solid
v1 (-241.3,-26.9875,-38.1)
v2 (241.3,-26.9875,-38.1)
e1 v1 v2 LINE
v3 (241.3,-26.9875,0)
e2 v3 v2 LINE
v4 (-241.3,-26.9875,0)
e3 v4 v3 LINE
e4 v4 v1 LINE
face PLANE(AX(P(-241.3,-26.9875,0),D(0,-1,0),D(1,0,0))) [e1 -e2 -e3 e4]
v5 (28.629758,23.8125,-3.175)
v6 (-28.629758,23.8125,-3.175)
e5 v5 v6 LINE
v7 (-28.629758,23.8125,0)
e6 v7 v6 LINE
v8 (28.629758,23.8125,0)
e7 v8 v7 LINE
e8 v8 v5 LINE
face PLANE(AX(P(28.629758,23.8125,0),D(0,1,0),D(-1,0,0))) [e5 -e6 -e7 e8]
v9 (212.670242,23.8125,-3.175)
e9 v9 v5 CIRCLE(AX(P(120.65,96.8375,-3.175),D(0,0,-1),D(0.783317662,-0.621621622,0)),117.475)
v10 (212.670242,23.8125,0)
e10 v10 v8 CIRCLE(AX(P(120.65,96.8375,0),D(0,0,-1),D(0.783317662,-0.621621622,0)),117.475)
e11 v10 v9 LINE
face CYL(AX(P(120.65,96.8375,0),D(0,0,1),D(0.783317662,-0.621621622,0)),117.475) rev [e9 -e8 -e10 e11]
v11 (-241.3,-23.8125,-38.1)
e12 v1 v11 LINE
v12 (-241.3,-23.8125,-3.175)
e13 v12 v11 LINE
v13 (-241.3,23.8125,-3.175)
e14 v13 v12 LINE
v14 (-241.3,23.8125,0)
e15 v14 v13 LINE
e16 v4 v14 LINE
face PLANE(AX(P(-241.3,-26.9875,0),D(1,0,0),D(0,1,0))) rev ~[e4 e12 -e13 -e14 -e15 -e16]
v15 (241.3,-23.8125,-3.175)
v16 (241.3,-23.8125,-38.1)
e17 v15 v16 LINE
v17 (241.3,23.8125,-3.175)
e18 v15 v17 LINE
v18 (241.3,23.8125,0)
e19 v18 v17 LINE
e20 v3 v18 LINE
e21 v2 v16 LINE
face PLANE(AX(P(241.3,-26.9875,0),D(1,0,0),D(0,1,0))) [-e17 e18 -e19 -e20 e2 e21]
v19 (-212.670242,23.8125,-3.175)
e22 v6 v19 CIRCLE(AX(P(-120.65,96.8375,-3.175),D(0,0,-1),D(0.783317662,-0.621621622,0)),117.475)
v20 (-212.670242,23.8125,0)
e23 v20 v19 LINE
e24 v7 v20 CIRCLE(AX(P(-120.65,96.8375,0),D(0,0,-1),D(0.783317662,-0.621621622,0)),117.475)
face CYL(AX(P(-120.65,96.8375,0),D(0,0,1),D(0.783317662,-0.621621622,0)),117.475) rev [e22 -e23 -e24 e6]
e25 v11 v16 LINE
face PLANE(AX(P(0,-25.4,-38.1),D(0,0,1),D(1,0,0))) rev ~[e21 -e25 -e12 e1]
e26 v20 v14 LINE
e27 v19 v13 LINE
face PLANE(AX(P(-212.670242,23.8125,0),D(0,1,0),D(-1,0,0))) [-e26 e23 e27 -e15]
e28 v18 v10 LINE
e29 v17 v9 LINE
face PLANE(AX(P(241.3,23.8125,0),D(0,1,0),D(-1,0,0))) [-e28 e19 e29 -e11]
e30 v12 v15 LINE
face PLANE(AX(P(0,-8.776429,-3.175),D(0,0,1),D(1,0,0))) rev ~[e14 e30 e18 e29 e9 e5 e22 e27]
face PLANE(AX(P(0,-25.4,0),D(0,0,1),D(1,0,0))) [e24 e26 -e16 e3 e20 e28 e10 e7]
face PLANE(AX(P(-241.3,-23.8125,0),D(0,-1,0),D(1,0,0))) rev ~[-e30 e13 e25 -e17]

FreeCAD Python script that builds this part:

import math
import FreeCAD as App
import Part
import Sketcher
Q = App.Units.Quantity

doc = App.newDocument("Part")
body = doc.addObject("PartDesign::Body", "Body")

# Sketch on XY plane
sketch1 = body.newObject("Sketcher::SketchObject", "Sketch")
sketch1.AttachmentSupport = (doc.getObject("XY_Plane"), [""])
sketch1.MapMode = "FlatFace"
sketch1.addGeometry([
    Part.LineSegment(App.Vector(-241, -24, 0), App.Vector(241, -24, 0)),  # 0
    Part.LineSegment(App.Vector(241, -24, 0), App.Vector(241, 24, 0)),  # 1
    Part.LineSegment(App.Vector(241, 24, 0), App.Vector(213, 24, 0)),  # 2
    Part.ArcOfCircle(Part.Circle(App.Vector(121, 97, 0), App.Vector(0, 0, 1), 117), math.radians(-142), math.radians(-38)),  # 3
    Part.LineSegment(App.Vector(29, 24, 0), App.Vector(-29, 24, 0)),  # 4
    Part.ArcOfCircle(Part.Circle(App.Vector(-121, 97, 0), App.Vector(0, 0, 1), 117), math.radians(-142), math.radians(-38)),  # 5
    Part.LineSegment(App.Vector(-213, 24, 0), App.Vector(-241, 24, 0)),  # 6
    Part.LineSegment(App.Vector(-241, 24, 0), App.Vector(-241, -24, 0)),  # 7
], False)
sketch1.addConstraint([
    Sketcher.Constraint("Coincident", 0, 2, 1, 1),
    Sketcher.Constraint("Coincident", 1, 2, 2, 1),
    Sketcher.Constraint("Coincident", 2, 2, 3, 2),
    Sketcher.Constraint("Coincident", 3, 1, 4, 1),
    Sketcher.Constraint("Coincident", 4, 2, 5, 2),
    Sketcher.Constraint("Coincident", 5, 1, 6, 1),
    Sketcher.Constraint("Coincident", 6, 2, 7, 1),
    Sketcher.Constraint("Coincident", 7, 2, 0, 1),
    Sketcher.Constraint("Horizontal", 0),
    Sketcher.Constraint("Vertical", 1),
    Sketcher.Constraint("Horizontal", 2),
    Sketcher.Constraint("Horizontal", 4),
    Sketcher.Constraint("Horizontal", 6),
    Sketcher.Constraint("Vertical", 7),
    Sketcher.Constraint("Equal", 3, 5),
    Sketcher.Constraint("Symmetric", 0, 2, 6, 2, -1, 1),
    Sketcher.Constraint("Symmetric", 3, 3, 5, 3, -2),
    Sketcher.Constraint("Horizontal", 2, 2, 3, 1),
    Sketcher.Constraint("Horizontal", 4, 2, 5, 1),
    Sketcher.Constraint("DistanceX", 0, 1, 0, 2, Q("19 in")),
    Sketcher.Constraint("Radius", 3, Q("4.625 in")),
    Sketcher.Constraint("DistanceX", 5, 3, 3, 3, Q("9.5 in")),
    Sketcher.Constraint("DistanceY", 1, 1, 1, 2, Q("1.875 in")),
    Sketcher.Constraint("DistanceY", 0, 2, 3, 3, Q("4.75 in")),
])
pad1 = body.newObject("PartDesign::Pad", "Pad")
pad1.Profile = sketch1
pad1.Length = Q("0.125 in")
pad1.Reversed = True

# Sketch on XY plane
sketch2 = body.newObject("Sketcher::SketchObject", "Sketch001")
sketch2.AttachmentSupport = (doc.getObject("XY_Plane"), [""])
sketch2.MapMode = "FlatFace"
sketch2.addGeometry([
    Part.LineSegment(App.Vector(-241.3, -23.8, 0), App.Vector(-241.3, -27, 0)),
    Part.LineSegment(App.Vector(-241.3, -27, 0), App.Vector(241.3, -27, 0)),
    Part.LineSegment(App.Vector(241.3, -27, 0), App.Vector(241.3, -23.8, 0)),
    Part.LineSegment(App.Vector(241.3, -23.8, 0), App.Vector(-241.3, -23.8, 0)),
], False)
sketch2.addConstraint([
    Sketcher.Constraint("Coincident", 0, 2, 1, 1),
    Sketcher.Constraint("Coincident", 1, 2, 2, 1),
    Sketcher.Constraint("Coincident", 2, 2, 3, 1),
    Sketcher.Constraint("Coincident", 3, 2, 0, 1),
    Sketcher.Constraint("Vertical", 0),
    Sketcher.Constraint("Horizontal", 1),
    Sketcher.Constraint("Vertical", 2),
    Sketcher.Constraint("Horizontal", 3),
    Sketcher.Constraint("DistanceX", 1, 1, 1, 2, Q("19 in")),
    Sketcher.Constraint("DistanceX", 0, 2, -1, 1, Q("9.5 in")),
    Sketcher.Constraint("DistanceY", 0, 2, 0, 1, Q("0.125 in")),
    Sketcher.Constraint("DistanceY", 0, 2, -1, 1, Q("1.0625 in")),
])
pad2 = body.newObject("PartDesign::Pad", "Pad001")
pad2.Profile = sketch2
pad2.Length = Q("1.5 in")
pad2.Reversed = True

doc.recompute()
